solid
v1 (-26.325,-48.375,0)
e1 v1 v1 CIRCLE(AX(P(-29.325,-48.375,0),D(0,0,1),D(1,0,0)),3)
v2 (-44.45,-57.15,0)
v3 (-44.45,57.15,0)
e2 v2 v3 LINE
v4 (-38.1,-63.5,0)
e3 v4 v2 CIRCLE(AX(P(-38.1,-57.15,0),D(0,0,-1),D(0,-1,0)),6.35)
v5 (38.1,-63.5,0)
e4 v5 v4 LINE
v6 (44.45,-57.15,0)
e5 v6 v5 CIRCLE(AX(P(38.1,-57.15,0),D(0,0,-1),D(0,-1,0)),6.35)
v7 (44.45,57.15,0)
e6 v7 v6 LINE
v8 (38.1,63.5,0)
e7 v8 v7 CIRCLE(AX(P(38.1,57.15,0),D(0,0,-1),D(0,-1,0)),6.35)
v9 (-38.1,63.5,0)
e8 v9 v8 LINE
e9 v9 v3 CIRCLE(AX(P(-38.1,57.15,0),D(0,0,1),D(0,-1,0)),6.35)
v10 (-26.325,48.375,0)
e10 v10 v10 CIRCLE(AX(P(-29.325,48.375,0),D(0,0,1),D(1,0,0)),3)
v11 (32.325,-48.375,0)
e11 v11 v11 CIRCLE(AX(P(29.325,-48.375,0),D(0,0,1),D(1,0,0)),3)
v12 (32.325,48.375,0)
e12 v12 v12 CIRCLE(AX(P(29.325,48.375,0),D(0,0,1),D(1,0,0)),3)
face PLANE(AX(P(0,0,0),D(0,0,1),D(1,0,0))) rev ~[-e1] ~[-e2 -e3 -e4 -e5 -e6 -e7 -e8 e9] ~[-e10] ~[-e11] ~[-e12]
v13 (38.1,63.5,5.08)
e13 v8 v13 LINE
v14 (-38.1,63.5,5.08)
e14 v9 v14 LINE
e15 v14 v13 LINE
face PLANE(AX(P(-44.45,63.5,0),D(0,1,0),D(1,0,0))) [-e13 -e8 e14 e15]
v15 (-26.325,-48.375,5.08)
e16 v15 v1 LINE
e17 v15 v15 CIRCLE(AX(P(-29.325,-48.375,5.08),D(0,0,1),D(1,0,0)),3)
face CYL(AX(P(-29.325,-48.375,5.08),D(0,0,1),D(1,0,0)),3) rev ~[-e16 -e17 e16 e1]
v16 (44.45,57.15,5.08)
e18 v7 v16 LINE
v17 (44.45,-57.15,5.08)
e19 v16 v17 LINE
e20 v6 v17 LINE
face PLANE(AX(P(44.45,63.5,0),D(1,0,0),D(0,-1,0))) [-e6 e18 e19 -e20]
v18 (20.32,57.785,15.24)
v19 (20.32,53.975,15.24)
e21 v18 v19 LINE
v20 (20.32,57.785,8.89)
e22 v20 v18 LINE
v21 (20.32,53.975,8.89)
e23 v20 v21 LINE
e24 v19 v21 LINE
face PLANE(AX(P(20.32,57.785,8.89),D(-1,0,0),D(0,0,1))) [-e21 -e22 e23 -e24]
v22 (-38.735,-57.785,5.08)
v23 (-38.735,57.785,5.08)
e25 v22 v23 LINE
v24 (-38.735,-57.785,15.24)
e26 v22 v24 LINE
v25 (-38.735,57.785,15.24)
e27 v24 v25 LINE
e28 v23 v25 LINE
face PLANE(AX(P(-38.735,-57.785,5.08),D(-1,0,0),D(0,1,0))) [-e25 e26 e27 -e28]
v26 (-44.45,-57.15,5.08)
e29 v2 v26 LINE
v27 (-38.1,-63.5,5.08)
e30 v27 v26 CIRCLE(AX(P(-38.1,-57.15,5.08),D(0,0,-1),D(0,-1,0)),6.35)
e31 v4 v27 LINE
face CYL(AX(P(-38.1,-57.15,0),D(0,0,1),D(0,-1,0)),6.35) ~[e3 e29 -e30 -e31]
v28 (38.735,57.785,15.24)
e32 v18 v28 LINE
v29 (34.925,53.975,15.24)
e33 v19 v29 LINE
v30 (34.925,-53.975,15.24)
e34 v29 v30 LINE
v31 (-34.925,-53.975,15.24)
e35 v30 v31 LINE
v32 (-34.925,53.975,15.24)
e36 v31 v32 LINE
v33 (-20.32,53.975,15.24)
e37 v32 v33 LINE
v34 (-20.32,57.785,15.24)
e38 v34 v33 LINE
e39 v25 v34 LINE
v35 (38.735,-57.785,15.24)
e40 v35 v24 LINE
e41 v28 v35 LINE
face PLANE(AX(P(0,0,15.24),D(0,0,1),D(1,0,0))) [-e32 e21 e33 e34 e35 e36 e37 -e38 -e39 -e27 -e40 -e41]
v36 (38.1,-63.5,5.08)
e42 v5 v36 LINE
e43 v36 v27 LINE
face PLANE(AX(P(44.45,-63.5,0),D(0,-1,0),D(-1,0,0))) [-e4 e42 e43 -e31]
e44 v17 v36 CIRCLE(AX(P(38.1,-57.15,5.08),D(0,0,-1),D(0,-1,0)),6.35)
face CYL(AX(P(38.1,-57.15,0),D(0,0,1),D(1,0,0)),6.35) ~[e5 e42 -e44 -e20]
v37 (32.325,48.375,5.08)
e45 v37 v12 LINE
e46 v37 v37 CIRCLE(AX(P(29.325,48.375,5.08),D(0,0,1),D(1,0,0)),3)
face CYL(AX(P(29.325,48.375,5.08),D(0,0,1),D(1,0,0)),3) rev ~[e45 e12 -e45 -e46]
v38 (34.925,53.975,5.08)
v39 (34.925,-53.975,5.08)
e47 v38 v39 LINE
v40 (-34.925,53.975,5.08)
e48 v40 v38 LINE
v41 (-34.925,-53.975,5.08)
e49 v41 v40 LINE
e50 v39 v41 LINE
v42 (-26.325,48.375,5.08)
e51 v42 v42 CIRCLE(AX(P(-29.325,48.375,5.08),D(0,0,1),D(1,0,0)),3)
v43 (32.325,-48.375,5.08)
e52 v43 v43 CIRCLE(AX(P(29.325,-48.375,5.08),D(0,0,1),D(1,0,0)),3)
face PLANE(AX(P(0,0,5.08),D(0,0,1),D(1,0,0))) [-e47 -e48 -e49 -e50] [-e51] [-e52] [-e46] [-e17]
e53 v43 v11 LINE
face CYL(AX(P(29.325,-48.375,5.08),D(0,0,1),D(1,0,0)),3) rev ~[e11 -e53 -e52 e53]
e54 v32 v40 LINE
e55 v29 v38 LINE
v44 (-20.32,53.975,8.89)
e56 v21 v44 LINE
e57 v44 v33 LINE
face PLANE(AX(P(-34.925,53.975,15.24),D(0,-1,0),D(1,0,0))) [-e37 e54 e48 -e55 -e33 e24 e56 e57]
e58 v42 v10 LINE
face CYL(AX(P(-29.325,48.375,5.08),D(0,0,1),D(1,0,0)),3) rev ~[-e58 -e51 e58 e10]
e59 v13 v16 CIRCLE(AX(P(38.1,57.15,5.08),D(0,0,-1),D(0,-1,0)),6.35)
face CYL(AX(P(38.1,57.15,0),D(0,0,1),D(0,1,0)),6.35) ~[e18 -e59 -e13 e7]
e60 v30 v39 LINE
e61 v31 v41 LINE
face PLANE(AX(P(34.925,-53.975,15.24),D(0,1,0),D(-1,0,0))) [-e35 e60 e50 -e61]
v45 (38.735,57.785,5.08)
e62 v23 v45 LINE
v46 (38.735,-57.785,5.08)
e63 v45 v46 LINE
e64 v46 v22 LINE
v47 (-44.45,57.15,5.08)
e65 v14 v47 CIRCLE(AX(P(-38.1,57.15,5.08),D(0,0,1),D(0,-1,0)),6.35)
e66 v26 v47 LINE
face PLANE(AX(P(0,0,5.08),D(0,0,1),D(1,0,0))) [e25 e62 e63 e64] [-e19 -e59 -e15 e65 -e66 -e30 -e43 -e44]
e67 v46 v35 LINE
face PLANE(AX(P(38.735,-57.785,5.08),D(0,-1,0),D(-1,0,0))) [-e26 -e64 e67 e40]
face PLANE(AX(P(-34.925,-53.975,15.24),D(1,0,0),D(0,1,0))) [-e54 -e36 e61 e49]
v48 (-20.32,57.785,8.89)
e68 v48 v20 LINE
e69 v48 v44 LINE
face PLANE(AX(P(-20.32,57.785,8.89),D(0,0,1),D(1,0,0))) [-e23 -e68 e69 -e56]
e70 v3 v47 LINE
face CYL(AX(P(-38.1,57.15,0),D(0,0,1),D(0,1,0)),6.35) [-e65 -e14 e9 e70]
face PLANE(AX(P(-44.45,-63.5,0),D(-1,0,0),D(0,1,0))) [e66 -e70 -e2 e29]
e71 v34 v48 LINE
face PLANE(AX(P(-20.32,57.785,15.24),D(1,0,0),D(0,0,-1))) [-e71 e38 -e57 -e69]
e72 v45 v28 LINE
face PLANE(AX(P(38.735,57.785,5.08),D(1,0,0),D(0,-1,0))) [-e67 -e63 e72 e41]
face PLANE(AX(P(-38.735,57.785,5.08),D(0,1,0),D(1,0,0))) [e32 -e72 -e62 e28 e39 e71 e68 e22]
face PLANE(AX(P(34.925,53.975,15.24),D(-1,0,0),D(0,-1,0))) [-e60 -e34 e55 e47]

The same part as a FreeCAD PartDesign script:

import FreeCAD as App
import Part
import Sketcher

V = App.Vector
Q = App.Units.Quantity


def edges_at(feature, points):
    """Names of the edges that pass closest to the given points."""
    edges = feature.Shape.Edges
    near = lambda p: min(range(len(edges)), key=lambda i: edges[i].distToShape(Part.Vertex(*p))[0])
    return sorted({f"Edge{near(p) + 1}" for p in points})


def add_polygon(sketch, points):
    """Adds a closed chain of lines whose ends are joined by coincident constraints."""
    first, n = sketch.GeometryCount, len(points)
    for a, b in zip(points, points[1:] + points[:1]):
        sketch.addGeometry(Part.LineSegment(App.Vector(*a, 0), App.Vector(*b, 0)), False)
    for i in range(n):
        sketch.addConstraint(Sketcher.Constraint("Coincident", first + i, 2, first + (i + 1) % n, 1))

doc = App.newDocument("Part")
body = doc.addObject("PartDesign::Body", "Body")

# Sketch on XY plane
sketch1 = body.newObject("Sketcher::SketchObject", "Sketch")
sketch1.AttachmentSupport = (doc.getObject("XY_Plane"), [""])
sketch1.MapMode = "FlatFace"
add_polygon(sketch1, [(44.45, 63.5), (-44.45, 63.5), (-44.45, -63.5), (44.45, -63.5)])  # lines 0-3
sketch1.addConstraint(Sketcher.Constraint("Horizontal", 0))
sketch1.addConstraint(Sketcher.Constraint("Vertical", 1))
sketch1.addConstraint(Sketcher.Constraint("Horizontal", 2))
sketch1.addConstraint(Sketcher.Constraint("Vertical", 3))
sketch1.addConstraint(Sketcher.Constraint("Symmetric", 0, 2, 2, 2, -1, 1))
sketch1.addConstraint(Sketcher.Constraint("DistanceY", 1, 2, 1, 1, Q("5 in")))
sketch1.addConstraint(Sketcher.Constraint("DistanceX", 0, 2, 0, 1, Q("3.5 in")))
pad1 = body.newObject("PartDesign::Pad", "Pad")
pad1.Profile = sketch1
pad1.Length = Q("0.2 in")
doc.recompute()

fillet = body.newObject("PartDesign::Fillet", "Fillet")
fillet.Base = (pad1, edges_at(pad1, [
    (44.45, 63.5, 2.54),
    (-44.45, 63.5, 2.54),
    (44.45, -63.5, 2.54),
    (-44.45, -63.5, 2.54),
]))
fillet.Radius = Q("0.25 in")

# Sketch on XY plane
sketch2 = body.newObject("Sketcher::SketchObject", "Sketch001")
sketch2.AttachmentSupport = (doc.getObject("XY_Plane"), [""])
sketch2.MapMode = "FlatFace"
sketch2.AttachmentOffset = App.Placement(V(0, 0, 0.2 * 25.4), App.Rotation())
add_polygon(sketch2, [(38.735, 57.785), (-38.735, 57.785), (-38.735, -57.785), (38.735, -57.785)])  # lines 0-3
sketch2.addConstraint(Sketcher.Constraint("Horizontal", 0))
sketch2.addConstraint(Sketcher.Constraint("Vertical", 1))
sketch2.addConstraint(Sketcher.Constraint("Horizontal", 2))
sketch2.addConstraint(Sketcher.Constraint("Vertical", 3))
sketch2.addConstraint(Sketcher.Constraint("Symmetric", 0, 2, 2, 2, -1, 1))
sketch2.addConstraint(Sketcher.Constraint("DistanceX", 0, 2, 0, 1, Q("3.05 in")))
sketch2.addConstraint(Sketcher.Constraint("DistanceY", 1, 2, 1, 1, Q("4.55 in")))
pad2 = body.newObject("PartDesign::Pad", "Pad001")
pad2.Profile = sketch2
pad2.Length = Q("0.4 in")

# Sketch on XY plane
sketch3 = body.newObject("Sketcher::SketchObject", "Sketch002")
sketch3.AttachmentSupport = (doc.getObject("XY_Plane"), [""])
sketch3.MapMode = "FlatFace"
sketch3.AttachmentOffset = App.Placement(V(0, 0, 0.6 * 25.4), App.Rotation())
add_polygon(sketch3, [(34.925, 53.975), (-34.925, 53.975), (-34.925, -53.975), (34.925, -53.975)])  # lines 0-3
sketch3.addConstraint(Sketcher.Constraint("Horizontal", 0))
sketch3.addConstraint(Sketcher.Constraint("Vertical", 1))
sketch3.addConstraint(Sketcher.Constraint("Horizontal", 2))
sketch3.addConstraint(Sketcher.Constraint("Vertical", 3))
sketch3.addConstraint(Sketcher.Constraint("Symmetric", 0, 2, 2, 2, -1, 1))
sketch3.addConstraint(Sketcher.Constraint("DistanceX", 0, 2, 0, 1, Q("2.75 in")))
sketch3.addConstraint(Sketcher.Constraint("DistanceY", 1, 2, 1, 1, Q("4.25 in")))
pocket1 = body.newObject("PartDesign::Pocket", "Pocket")
pocket1.Profile = sketch3
pocket1.Length = Q("0.4 in")

# Sketch on XZ plane
sketch4 = body.newObject("Sketcher::SketchObject", "Sketch003")
sketch4.AttachmentSupport = (doc.getObject("XZ_Plane"), [""])
sketch4.MapMode = "FlatFace"
sketch4.AttachmentOffset = App.Placement(V(0, 0, -2.275 * 25.4), App.Rotation())
add_polygon(sketch4, [(-20.32, 15.24), (20.32, 15.24), (20.32, 8.89), (-20.32, 8.89)])  # lines 0-3
sketch4.addConstraint(Sketcher.Constraint("Horizontal", 0))
sketch4.addConstraint(Sketcher.Constraint("Vertical", 1))
sketch4.addConstraint(Sketcher.Constraint("Horizontal", 2))
sketch4.addConstraint(Sketcher.Constraint("Vertical", 3))
sketch4.addConstraint(Sketcher.Constraint("DistanceX", 0, 1, 0, 2, Q("1.6 in")))
sketch4.addConstraint(Sketcher.Constraint("DistanceY", 1, 2, 1, 1, Q("0.25 in")))
sketch4.addConstraint(Sketcher.Constraint("DistanceX", -1, 1, 0, 2, Q("0.8 in")))
sketch4.addConstraint(Sketcher.Constraint("DistanceY", -1, 1, 0, 2, Q("0.6 in")))
pocket2 = body.newObject("PartDesign::Pocket", "Pocket001")
pocket2.Profile = sketch4
pocket2.Length = Q("0.4 in")
pocket2.Reversed = True

# Sketch on XY plane
sketch5 = body.newObject("Sketcher::SketchObject", "Sketch004")
sketch5.AttachmentSupport = (doc.getObject("XY_Plane"), [""])
sketch5.MapMode = "FlatFace"
sketch5.AttachmentOffset = App.Placement(V(0, 0, 0.2 * 25.4), App.Rotation())
sketch5.addGeometry(Part.Circle(V(-29.325, 48.375, 0), V(0, 0, 1), 3), False)
sketch5.addGeometry(Part.Circle(V(29.325, 48.375, 0), V(0, 0, 1), 3), False)
sketch5.addGeometry(Part.Circle(V(-29.325, -48.375, 0), V(0, 0, 1), 3), False)
sketch5.addGeometry(Part.Circle(V(29.325, -48.375, 0), V(0, 0, 1), 3), False)
sketch5.addConstraint(Sketcher.Constraint("Equal", 0, 1))
sketch5.addConstraint(Sketcher.Constraint("Equal", 1, 2))
sketch5.addConstraint(Sketcher.Constraint("Equal", 2, 3))
sketch5.addConstraint(Sketcher.Constraint("Symmetric", 1, 3, 2, 3, -1, 1))
sketch5.addConstraint(Sketcher.Constraint("Symmetric", 0, 3, 3, 3, -1, 1))
sketch5.addConstraint(Sketcher.Constraint("Symmetric", 0, 3, 1, 3, -2))
sketch5.addConstraint(Sketcher.Constraint("Diameter", 0, 6.0))
sketch5.addConstraint(Sketcher.Constraint("DistanceX", 0, 3, -1, 1, 29.325))
sketch5.addConstraint(Sketcher.Constraint("DistanceY", -1, 1, 0, 3, 48.375))
pocket3 = body.newObject("PartDesign::Pocket", "Pocket002")
pocket3.Profile = sketch5
pocket3.Length = Q("0.3937008 in")

doc.recompute()
